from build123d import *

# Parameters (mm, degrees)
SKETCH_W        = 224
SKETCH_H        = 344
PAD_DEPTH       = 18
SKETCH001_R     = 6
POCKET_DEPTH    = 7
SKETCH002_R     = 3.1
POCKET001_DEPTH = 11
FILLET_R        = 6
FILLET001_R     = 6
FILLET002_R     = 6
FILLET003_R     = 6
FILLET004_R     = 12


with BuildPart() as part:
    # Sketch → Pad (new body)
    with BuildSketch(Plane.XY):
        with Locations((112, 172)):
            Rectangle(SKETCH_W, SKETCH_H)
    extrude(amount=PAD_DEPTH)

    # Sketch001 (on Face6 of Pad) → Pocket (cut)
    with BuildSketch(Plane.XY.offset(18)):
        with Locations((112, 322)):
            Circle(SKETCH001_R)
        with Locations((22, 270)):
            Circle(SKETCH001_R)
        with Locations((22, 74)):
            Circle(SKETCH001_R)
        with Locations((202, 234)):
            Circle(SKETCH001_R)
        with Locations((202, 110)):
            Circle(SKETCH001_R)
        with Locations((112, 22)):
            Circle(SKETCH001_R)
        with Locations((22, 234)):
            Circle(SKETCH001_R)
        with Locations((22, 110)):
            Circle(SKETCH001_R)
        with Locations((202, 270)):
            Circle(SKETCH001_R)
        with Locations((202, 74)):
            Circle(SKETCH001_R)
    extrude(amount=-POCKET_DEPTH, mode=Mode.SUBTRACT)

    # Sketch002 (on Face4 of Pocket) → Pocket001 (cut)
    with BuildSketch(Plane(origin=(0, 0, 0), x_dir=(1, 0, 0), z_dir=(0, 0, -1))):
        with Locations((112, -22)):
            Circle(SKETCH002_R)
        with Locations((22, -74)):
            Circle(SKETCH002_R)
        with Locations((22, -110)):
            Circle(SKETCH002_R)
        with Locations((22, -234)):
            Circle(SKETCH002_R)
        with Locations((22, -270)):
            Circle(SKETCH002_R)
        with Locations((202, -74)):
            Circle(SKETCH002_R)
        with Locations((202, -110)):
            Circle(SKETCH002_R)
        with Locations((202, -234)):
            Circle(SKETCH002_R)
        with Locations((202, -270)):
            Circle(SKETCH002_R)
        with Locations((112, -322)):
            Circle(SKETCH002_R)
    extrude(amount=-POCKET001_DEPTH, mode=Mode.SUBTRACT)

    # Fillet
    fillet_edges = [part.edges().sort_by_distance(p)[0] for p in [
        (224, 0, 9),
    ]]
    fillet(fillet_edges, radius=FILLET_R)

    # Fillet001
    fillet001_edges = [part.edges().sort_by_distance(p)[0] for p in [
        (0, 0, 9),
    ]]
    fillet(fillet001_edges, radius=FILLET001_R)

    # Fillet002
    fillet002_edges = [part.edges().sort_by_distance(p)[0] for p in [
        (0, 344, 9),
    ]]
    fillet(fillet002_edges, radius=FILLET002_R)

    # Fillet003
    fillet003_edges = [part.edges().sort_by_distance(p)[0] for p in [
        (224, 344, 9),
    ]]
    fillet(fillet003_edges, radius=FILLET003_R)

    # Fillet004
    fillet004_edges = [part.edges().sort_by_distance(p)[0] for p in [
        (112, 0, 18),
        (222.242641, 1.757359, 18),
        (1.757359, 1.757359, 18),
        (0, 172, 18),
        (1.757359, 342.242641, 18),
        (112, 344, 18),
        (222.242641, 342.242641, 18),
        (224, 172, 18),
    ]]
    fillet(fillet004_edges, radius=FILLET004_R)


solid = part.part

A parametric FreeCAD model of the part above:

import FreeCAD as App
import Part
import Sketcher


def edges_at(feature, points):
    """Names of the edges that pass closest to the given points."""
    edges = feature.Shape.Edges
    near = lambda p: min(range(len(edges)), key=lambda i: edges[i].distToShape(Part.Vertex(*p))[0])
    return sorted({f"Edge{near(p) + 1}" for p in points})


def add_polygon(sketch, points):
    """Adds a closed chain of lines whose ends are joined by coincident constraints."""
    first, n = sketch.GeometryCount, len(points)
    for a, b in zip(points, points[1:] + points[:1]):
        sketch.addGeometry(Part.LineSegment(App.Vector(*a, 0), App.Vector(*b, 0)), False)
    for i in range(n):
        sketch.addConstraint(Sketcher.Constraint("Coincident", first + i, 2, first + (i + 1) % n, 1))

doc = App.newDocument("Part")
body = doc.addObject("PartDesign::Body", "Body")

# Sketch on XY plane
sketch1 = body.newObject("Sketcher::SketchObject", "Sketch")
sketch1.AttachmentSupport = (doc.getObject("XY_Plane"), [""])
sketch1.MapMode = "FlatFace"
add_polygon(sketch1, [(0, 344), (0, 0), (224, 0), (224, 344)])  # lines 0-3
sketch1.addConstraint([
    Sketcher.Constraint("Vertical", 0),
    Sketcher.Constraint("Horizontal", 1),
    Sketcher.Constraint("Vertical", 2),
    Sketcher.Constraint("Horizontal", 3),
    Sketcher.Constraint("Coincident", 0, 2, -1, 1),
    Sketcher.Constraint("DistanceX", 1, 1, 1, 2, 224.0),
    Sketcher.Constraint("DistanceY", 0, 2, 0, 1, 344.0),
])
pad1 = body.newObject("PartDesign::Pad", "Pad")
pad1.Profile = sketch1
pad1.Length = 18

# Sketch on XY plane
sketch2 = body.newObject("Sketcher::SketchObject", "Sketch001")
sketch2.AttachmentSupport = (doc.getObject("XY_Plane"), [""])
sketch2.MapMode = "FlatFace"
sketch2.AttachmentOffset = App.Placement(App.Vector(0, 0, 18), App.Rotation())
sketch2.addGeometry([
    Part.Circle(App.Vector(112, 322, 0), App.Vector(0, 0, 1), 6),  # 0
    Part.Circle(App.Vector(22, 270, 0), App.Vector(0, 0, 1), 6),  # 1
    Part.Circle(App.Vector(22, 74, 0), App.Vector(0, 0, 1), 6),  # 2
    Part.Circle(App.Vector(202, 234, 0), App.Vector(0, 0, 1), 6),  # 3
    Part.Circle(App.Vector(202, 110, 0), App.Vector(0, 0, 1), 6),  # 4
    Part.Circle(App.Vector(112, 22, 0), App.Vector(0, 0, 1), 6),  # 5
    Part.Circle(App.Vector(22, 234, 0), App.Vector(0, 0, 1), 6),  # 6
    Part.Circle(App.Vector(22, 110, 0), App.Vector(0, 0, 1), 6),  # 7
    Part.Circle(App.Vector(202, 270, 0), App.Vector(0, 0, 1), 6),  # 8
    Part.Circle(App.Vector(202, 74, 0), App.Vector(0, 0, 1), 6),  # 9
], False)
sketch2.addConstraint([
    Sketcher.Constraint("Equal", 0, 1),
    Sketcher.Constraint("Equal", 1, 2),
    Sketcher.Constraint("Equal", 2, 3),
    Sketcher.Constraint("Equal", 3, 4),
    Sketcher.Constraint("Equal", 4, 5),
    Sketcher.Constraint("Equal", 5, 6),
    Sketcher.Constraint("Equal", 6, 7),
    Sketcher.Constraint("Equal", 7, 8),
    Sketcher.Constraint("Equal", 8, 9),
    Sketcher.Constraint("Horizontal", 3, 3, 6, 3),
    Sketcher.Constraint("Horizontal", 4, 3, 7, 3),
    Sketcher.Constraint("Horizontal", 1, 3, 8, 3),
    Sketcher.Constraint("Horizontal", 2, 3, 9, 3),
    Sketcher.Constraint("Vertical", 1, 3, 2, 3),
    Sketcher.Constraint("Vertical", 3, 3, 4, 3),
    Sketcher.Constraint("Vertical", 0, 3, 5, 3),
    Sketcher.Constraint("Vertical", 2, 3, 6, 3),
    Sketcher.Constraint("Vertical", 6, 3, 7, 3),
    Sketcher.Constraint("Vertical", 4, 3, 8, 3),
    Sketcher.Constraint("Vertical", 8, 3, 9, 3),
    Sketcher.Constraint("Diameter", 0, 12.0),
    Sketcher.Constraint("DistanceX", -1, 1, 0, 3, 112.0),
    Sketcher.Constraint("DistanceY", -1, 1, 0, 3, 322.0),
    Sketcher.Constraint("DistanceX", -1, 1, 1, 3, 22.0),
    Sketcher.Constraint("DistanceY", -1, 1, 1, 3, 270.0),
    Sketcher.Constraint("DistanceY", -1, 1, 2, 3, 74.0),
    Sketcher.Constraint("DistanceX", -1, 1, 3, 3, 202.0),
    Sketcher.Constraint("DistanceY", -1, 1, 3, 3, 234.0),
    Sketcher.Constraint("DistanceY", -1, 1, 4, 3, 110.0),
    Sketcher.Constraint("DistanceY", -1, 1, 5, 3, 22.0),
])
pocket1 = body.newObject("PartDesign::Pocket", "Pocket")
pocket1.Profile = sketch2
pocket1.Length = 7

# Sketch on XY plane
sketch3 = body.newObject("Sketcher::SketchObject", "Sketch002")
sketch3.AttachmentSupport = (doc.getObject("XY_Plane"), [""])
sketch3.MapMode = "FlatFace"
sketch3.addGeometry([
    Part.Circle(App.Vector(112, 22, 0), App.Vector(0, 0, 1), 3.1),  # 0
    Part.Circle(App.Vector(22, 74, 0), App.Vector(0, 0, 1), 3.1),  # 1
    Part.Circle(App.Vector(22, 110, 0), App.Vector(0, 0, 1), 3.1),  # 2
    Part.Circle(App.Vector(22, 234, 0), App.Vector(0, 0, 1), 3.1),  # 3
    Part.Circle(App.Vector(22, 270, 0), App.Vector(0, 0, 1), 3.1),  # 4
    Part.Circle(App.Vector(202, 74, 0), App.Vector(0, 0, 1), 3.1),  # 5
    Part.Circle(App.Vector(202, 110, 0), App.Vector(0, 0, 1), 3.1),  # 6
    Part.Circle(App.Vector(202, 234, 0), App.Vector(0, 0, 1), 3.1),  # 7
    Part.Circle(App.Vector(202, 270, 0), App.Vector(0, 0, 1), 3.1),  # 8
    Part.Circle(App.Vector(112, 322, 0), App.Vector(0, 0, 1), 3.1),  # 9
], False)
sketch3.addConstraint([
    Sketcher.Constraint("Equal", 0, 1),
    Sketcher.Constraint("Equal", 1, 2),
    Sketcher.Constraint("Equal", 2, 3),
    Sketcher.Constraint("Equal", 3, 4),
    Sketcher.Constraint("Equal", 4, 5),
    Sketcher.Constraint("Equal", 5, 6),
    Sketcher.Constraint("Equal", 6, 7),
    Sketcher.Constraint("Equal", 7, 8),
    Sketcher.Constraint("Equal", 8, 9),
    Sketcher.Constraint("Horizontal", 1, 3, 5, 3),
    Sketcher.Constraint("Horizontal", 2, 3, 6, 3),
    Sketcher.Constraint("Horizontal", 3, 3, 7, 3),
    Sketcher.Constraint("Horizontal", 4, 3, 8, 3),
    Sketcher.Constraint("Vertical", 1, 3, 2, 3),
    Sketcher.Constraint("Vertical", 2, 3, 3, 3),
    Sketcher.Constraint("Vertical", 3, 3, 4, 3),
    Sketcher.Constraint("Vertical", 5, 3, 6, 3),
    Sketcher.Constraint("Vertical", 6, 3, 7, 3),
    Sketcher.Constraint("Vertical", 7, 3, 8, 3),
    Sketcher.Constraint("Vertical", 0, 3, 9, 3),
    Sketcher.Constraint("Diameter", 0, 6.2),
    Sketcher.Constraint("DistanceX", -1, 1, 0, 3, 112.0),
    Sketcher.Constraint("DistanceY", -1, 1, 0, 3, 22.0),
    Sketcher.Constraint("DistanceX", -1, 1, 1, 3, 22.0),
    Sketcher.Constraint("DistanceY", -1, 1, 1, 3, 74.0),
    Sketcher.Constraint("DistanceY", -1, 1, 2, 3, 110.0),
    Sketcher.Constraint("DistanceY", -1, 1, 3, 3, 234.0),
    Sketcher.Constraint("DistanceY", -1, 1, 4, 3, 270.0),
    Sketcher.Constraint("DistanceX", -1, 1, 5, 3, 202.0),
    Sketcher.Constraint("DistanceY", -1, 1, 9, 3, 322.0),
])
pocket2 = body.newObject("PartDesign::Pocket", "Pocket001")
pocket2.Profile = sketch3
pocket2.Length = 11
pocket2.Reversed = True
doc.recompute()

fillet = body.newObject("PartDesign::Fillet", "Fillet")
fillet.Base = (pocket2, edges_at(pocket2, [(224, 0, 9)]))
fillet.Radius = 6
doc.recompute()

fillet2 = body.newObject("PartDesign::Fillet", "Fillet001")
fillet2.Base = (fillet, edges_at(fillet, [(0, 0, 9)]))
fillet2.Radius = 6
doc.recompute()

fillet3 = body.newObject("PartDesign::Fillet", "Fillet002")
fillet3.Base = (fillet2, edges_at(fillet2, [(0, 344, 9)]))
fillet3.Radius = 6
doc.recompute()

fillet4 = body.newObject("PartDesign::Fillet", "Fillet003")
fillet4.Base = (fillet3, edges_at(fillet3, [(224, 344, 9)]))
fillet4.Radius = 6
doc.recompute()

fillet5 = body.newObject("PartDesign::Fillet", "Fillet004")
fillet5.Base = (fillet4, edges_at(fillet4, [
    (112, 0, 18),
    (222.243, 1.757, 18),
    (1.757, 1.757, 18),
    (0, 172, 18),
    (1.757, 342.243, 18),
    (112, 344, 18),
    (222.243, 342.243, 18),
    (224, 172, 18),
]))
fillet5.Radius = 12

doc.recompute()
